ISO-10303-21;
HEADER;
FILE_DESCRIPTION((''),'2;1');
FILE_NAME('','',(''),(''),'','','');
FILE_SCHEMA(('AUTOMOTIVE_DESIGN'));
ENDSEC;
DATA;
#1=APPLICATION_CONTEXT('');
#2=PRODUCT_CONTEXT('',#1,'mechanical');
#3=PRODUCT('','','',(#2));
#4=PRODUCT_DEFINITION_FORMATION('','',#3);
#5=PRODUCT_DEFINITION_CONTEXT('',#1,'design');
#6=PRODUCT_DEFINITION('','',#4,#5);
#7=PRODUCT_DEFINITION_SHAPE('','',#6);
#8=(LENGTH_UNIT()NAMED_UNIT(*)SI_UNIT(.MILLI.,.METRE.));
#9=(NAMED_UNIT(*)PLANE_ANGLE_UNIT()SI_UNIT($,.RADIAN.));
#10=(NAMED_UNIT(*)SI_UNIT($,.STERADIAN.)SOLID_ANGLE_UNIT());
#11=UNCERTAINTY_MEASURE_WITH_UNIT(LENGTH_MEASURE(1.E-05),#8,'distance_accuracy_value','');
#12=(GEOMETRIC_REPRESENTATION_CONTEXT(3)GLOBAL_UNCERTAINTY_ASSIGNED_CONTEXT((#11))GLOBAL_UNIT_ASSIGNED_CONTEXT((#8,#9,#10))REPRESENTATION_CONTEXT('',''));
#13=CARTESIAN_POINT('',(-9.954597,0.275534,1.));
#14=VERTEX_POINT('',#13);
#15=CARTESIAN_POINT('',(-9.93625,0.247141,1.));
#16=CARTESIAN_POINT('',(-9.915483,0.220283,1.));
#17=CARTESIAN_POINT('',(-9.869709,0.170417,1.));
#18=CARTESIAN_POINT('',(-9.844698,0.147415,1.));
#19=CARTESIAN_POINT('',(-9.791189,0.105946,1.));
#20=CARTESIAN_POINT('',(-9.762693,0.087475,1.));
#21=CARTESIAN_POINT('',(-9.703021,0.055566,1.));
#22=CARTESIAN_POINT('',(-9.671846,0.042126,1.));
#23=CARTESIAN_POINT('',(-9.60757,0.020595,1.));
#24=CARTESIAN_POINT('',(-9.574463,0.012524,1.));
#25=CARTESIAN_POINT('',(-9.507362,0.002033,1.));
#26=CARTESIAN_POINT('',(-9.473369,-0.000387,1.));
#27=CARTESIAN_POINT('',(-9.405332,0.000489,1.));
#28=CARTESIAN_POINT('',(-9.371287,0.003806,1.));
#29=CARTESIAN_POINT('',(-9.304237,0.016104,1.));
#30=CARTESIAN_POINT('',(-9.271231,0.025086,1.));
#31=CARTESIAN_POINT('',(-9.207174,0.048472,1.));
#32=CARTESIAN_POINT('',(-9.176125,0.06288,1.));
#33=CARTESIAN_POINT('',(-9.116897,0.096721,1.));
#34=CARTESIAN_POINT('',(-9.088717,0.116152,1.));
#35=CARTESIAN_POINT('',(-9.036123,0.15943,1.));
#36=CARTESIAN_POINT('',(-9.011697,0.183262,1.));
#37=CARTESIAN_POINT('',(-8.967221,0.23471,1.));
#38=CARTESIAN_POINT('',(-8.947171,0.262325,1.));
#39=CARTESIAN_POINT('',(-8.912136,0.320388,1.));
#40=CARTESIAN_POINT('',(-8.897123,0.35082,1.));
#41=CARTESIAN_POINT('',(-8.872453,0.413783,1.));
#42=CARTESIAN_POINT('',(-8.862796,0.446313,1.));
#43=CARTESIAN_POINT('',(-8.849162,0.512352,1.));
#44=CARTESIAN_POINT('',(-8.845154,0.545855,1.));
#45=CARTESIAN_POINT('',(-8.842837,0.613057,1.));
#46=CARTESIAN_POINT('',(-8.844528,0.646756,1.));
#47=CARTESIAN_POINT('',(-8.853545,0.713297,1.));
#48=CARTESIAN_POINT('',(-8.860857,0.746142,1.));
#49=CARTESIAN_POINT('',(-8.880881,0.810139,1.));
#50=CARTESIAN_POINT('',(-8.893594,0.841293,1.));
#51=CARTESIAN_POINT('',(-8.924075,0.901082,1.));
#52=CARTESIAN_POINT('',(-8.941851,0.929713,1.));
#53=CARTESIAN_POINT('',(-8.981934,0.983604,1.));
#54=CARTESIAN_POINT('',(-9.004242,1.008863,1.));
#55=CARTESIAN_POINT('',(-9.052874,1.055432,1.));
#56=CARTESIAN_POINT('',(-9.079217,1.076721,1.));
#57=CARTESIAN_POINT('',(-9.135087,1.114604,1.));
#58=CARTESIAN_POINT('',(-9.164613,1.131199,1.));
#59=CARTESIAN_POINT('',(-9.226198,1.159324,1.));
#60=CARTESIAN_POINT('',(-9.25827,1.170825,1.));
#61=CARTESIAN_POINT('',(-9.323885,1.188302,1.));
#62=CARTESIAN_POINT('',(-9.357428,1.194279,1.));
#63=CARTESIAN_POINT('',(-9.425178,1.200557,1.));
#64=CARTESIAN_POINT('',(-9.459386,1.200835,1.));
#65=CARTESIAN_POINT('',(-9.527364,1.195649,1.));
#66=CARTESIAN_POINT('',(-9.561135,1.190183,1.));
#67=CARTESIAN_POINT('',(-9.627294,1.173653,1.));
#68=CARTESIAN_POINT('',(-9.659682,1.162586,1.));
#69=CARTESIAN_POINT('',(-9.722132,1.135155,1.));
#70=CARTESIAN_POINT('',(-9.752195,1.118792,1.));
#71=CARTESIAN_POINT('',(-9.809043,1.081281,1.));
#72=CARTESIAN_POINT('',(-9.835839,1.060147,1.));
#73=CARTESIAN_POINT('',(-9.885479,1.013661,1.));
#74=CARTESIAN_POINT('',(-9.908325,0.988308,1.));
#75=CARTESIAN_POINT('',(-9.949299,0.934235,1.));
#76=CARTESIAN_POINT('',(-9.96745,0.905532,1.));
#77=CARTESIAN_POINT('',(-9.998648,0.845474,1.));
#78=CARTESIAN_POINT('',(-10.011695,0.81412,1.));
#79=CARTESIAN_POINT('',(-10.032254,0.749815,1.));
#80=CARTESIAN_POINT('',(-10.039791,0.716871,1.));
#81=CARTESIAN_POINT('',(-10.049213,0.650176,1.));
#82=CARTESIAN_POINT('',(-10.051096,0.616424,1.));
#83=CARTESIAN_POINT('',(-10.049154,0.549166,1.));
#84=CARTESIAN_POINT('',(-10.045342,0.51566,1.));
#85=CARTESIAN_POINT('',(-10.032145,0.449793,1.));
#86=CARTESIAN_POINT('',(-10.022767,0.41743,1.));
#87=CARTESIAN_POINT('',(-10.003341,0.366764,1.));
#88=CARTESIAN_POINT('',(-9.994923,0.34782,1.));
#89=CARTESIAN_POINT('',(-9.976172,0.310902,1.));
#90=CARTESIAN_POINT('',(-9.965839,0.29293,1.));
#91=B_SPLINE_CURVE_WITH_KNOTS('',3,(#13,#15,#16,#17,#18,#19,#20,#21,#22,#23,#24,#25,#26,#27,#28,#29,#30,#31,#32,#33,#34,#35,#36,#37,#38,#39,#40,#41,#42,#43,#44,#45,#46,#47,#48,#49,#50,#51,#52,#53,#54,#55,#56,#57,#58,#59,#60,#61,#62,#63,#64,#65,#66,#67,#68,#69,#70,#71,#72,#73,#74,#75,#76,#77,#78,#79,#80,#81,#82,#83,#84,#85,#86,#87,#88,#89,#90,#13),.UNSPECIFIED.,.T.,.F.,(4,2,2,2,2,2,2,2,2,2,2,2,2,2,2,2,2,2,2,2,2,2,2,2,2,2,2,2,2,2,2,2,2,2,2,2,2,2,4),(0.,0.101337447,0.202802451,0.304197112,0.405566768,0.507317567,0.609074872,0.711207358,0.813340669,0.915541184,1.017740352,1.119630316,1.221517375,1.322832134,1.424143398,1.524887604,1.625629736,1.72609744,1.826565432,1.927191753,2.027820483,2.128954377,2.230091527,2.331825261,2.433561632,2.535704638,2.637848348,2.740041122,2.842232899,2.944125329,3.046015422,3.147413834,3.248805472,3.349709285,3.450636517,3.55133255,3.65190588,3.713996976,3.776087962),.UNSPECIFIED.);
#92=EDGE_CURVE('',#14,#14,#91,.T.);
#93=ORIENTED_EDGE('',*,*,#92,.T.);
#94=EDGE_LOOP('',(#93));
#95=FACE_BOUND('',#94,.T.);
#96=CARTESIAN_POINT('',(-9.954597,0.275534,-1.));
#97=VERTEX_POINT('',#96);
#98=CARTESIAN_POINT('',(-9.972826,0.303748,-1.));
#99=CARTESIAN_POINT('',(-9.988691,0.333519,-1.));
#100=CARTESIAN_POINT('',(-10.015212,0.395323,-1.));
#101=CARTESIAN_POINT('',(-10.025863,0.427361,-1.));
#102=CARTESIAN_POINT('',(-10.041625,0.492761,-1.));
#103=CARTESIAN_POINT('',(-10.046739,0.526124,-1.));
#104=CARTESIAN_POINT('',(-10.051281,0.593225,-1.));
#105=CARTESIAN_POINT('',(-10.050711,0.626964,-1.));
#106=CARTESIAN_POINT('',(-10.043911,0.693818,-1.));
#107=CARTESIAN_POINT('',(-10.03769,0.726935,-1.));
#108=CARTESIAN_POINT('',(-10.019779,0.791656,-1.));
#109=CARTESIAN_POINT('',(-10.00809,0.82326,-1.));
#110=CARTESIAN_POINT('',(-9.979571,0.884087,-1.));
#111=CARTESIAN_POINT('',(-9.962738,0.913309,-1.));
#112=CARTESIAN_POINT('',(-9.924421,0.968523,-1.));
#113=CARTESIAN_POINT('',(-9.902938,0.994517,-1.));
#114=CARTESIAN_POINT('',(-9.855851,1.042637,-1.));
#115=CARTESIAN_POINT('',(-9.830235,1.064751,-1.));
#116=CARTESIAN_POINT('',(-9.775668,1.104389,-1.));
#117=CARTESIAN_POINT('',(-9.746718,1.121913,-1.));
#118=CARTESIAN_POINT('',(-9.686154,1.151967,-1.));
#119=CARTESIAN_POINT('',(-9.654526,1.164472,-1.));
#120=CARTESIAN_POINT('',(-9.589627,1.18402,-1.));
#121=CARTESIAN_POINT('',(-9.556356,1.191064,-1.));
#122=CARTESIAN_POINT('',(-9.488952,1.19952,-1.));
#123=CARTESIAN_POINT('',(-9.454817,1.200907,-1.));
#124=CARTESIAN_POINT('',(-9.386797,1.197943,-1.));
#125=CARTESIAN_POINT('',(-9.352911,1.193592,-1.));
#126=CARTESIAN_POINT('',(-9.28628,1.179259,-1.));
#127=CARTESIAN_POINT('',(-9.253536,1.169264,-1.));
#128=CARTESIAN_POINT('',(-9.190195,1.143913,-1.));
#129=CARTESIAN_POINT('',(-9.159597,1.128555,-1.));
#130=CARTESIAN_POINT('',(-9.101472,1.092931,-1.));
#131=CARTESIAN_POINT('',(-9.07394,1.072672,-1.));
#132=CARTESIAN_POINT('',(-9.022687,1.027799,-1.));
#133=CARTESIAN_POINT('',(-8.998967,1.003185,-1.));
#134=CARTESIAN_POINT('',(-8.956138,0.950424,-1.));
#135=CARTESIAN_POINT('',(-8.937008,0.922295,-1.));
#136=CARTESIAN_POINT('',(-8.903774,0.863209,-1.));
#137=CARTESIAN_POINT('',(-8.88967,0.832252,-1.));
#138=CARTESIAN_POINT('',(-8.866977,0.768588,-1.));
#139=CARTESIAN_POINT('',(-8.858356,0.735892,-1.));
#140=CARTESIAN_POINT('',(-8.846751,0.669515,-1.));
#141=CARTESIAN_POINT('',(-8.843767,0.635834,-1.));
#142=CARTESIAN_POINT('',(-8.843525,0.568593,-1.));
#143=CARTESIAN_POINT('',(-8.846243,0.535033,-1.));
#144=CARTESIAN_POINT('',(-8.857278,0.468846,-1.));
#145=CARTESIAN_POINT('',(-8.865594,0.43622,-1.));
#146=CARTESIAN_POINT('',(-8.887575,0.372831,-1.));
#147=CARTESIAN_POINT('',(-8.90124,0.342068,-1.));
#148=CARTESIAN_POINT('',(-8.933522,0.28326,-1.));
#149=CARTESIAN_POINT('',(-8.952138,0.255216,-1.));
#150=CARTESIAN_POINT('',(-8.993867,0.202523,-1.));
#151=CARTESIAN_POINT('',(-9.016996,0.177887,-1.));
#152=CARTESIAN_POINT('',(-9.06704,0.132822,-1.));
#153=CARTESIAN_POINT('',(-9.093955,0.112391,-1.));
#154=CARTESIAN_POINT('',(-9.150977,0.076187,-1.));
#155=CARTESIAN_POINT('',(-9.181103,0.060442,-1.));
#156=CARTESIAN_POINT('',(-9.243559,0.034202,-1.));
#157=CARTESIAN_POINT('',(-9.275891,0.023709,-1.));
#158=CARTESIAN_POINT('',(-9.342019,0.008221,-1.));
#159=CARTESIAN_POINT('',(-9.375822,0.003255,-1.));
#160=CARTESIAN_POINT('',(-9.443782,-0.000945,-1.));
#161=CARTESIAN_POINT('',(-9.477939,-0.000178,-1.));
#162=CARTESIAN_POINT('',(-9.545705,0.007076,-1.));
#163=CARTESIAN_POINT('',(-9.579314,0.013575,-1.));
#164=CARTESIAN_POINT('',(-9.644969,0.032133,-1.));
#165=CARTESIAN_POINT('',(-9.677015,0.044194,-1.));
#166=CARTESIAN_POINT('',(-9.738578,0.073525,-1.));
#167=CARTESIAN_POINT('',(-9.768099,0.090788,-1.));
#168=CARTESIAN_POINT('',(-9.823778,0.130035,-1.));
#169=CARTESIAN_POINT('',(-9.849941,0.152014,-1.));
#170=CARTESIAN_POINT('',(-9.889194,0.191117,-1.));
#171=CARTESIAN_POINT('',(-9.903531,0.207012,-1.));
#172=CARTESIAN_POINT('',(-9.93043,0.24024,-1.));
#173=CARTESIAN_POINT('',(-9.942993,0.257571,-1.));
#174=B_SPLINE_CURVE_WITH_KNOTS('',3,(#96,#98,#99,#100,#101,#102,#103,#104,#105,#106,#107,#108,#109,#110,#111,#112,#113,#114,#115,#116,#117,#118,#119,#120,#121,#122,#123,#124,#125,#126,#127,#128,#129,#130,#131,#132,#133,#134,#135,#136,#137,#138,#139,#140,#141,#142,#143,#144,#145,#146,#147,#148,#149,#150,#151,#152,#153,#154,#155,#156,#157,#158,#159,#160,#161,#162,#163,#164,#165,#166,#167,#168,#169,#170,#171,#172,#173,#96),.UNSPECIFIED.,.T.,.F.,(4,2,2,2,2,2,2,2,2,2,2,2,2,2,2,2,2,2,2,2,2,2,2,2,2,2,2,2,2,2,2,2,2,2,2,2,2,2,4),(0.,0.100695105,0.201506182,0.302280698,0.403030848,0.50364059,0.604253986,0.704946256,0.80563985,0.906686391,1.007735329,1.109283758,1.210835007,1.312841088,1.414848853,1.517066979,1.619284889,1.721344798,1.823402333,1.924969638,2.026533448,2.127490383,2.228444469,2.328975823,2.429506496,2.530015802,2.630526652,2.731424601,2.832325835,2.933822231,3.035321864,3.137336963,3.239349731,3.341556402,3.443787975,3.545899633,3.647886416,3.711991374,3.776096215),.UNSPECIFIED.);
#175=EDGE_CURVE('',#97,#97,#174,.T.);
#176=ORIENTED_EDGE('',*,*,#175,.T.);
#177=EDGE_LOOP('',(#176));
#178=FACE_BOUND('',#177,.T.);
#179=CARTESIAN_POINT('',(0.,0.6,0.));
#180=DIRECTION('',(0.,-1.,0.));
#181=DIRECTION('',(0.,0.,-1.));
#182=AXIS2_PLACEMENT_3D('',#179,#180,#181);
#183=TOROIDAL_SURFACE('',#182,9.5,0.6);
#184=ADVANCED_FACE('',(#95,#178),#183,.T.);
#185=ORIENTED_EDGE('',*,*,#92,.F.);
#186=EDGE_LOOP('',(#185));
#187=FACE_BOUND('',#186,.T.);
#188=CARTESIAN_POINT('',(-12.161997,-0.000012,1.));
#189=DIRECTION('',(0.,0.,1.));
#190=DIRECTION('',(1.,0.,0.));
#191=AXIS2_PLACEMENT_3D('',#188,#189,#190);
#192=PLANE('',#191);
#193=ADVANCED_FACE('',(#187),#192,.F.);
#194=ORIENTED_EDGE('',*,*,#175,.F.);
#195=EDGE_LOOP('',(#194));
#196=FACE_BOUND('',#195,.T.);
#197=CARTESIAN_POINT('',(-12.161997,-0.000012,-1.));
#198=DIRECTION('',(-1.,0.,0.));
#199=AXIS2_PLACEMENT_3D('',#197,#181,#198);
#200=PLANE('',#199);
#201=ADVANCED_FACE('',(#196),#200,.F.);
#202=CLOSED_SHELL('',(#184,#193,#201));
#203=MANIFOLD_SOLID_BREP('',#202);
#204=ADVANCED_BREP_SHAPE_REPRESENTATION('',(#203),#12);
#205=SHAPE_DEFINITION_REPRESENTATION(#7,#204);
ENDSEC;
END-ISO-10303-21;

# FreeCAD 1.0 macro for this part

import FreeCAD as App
import Part
import Sketcher


def add_polygon(sketch, points):
    """Adds a closed chain of lines whose ends are joined by coincident constraints."""
    first, n = sketch.GeometryCount, len(points)
    for a, b in zip(points, points[1:] + points[:1]):
        sketch.addGeometry(Part.LineSegment(App.Vector(*a, 0), App.Vector(*b, 0)), False)
    for i in range(n):
        sketch.addConstraint(Sketcher.Constraint("Coincident", first + i, 2, first + (i + 1) % n, 1))

doc = App.newDocument("Part")
body = doc.addObject("PartDesign::Body", "Body")

# Sketch on XY plane
sketch1 = body.newObject("Sketcher::SketchObject", "Sketch")
sketch1.AttachmentSupport = (doc.getObject("XY_Plane"), [""])
sketch1.MapMode = "FlatFace"
sketch1.addGeometry(Part.Circle(App.Vector(-9.5, 0.6, 0), App.Vector(0, 0, 1), 0.6), False)
sketch1.addConstraint([
    Sketcher.Constraint("Diameter", 0, 1.2),
    Sketcher.Constraint("DistanceX", 0, 3, -1, 1, 9.5),
    Sketcher.Constraint("DistanceY", -1, 1, 0, 3, 0.6),
])
revolution = body.newObject("PartDesign::Revolution", "Revolution")
revolution.Profile = sketch1
revolution.ReferenceAxis = (sketch1, ["V_Axis"])
revolution.Angle = 360

# Sketch on XZ plane
sketch2 = body.newObject("Sketcher::SketchObject", "Sketch001")
sketch2.AttachmentSupport = (doc.getObject("XZ_Plane"), [""])
sketch2.MapMode = "FlatFace"
add_polygon(sketch2, [(-12.161997, -1), (-12.161997, 1), (-7.167249, 1), (-7.167249, -1)])  # lines 0-3
sketch2.addConstraint([
    Sketcher.Constraint("Vertical", 0),
    Sketcher.Constraint("Horizontal", 1),
    Sketcher.Constraint("Vertical", 2),
    Sketcher.Constraint("Horizontal", 3),
    Sketcher.Constraint("DistanceY", 0, 1, 0, 2, 2.0),
    Sketcher.Constraint("DistanceY", -1, 1, 0, 2, 1.0),
    Sketcher.Constraint("DistanceX", 1, 1, 1, 2, 4.994749),
    Sketcher.Constraint("DistanceX", 1, 2, -1, 1, 7.167249),
])
pocket1 = body.newObject("PartDesign::Pocket", "Pocket")
pocket1.Profile = sketch2
pocket1.Type = "ThroughAll"
pocket1.Midplane = True

doc.recompute()
